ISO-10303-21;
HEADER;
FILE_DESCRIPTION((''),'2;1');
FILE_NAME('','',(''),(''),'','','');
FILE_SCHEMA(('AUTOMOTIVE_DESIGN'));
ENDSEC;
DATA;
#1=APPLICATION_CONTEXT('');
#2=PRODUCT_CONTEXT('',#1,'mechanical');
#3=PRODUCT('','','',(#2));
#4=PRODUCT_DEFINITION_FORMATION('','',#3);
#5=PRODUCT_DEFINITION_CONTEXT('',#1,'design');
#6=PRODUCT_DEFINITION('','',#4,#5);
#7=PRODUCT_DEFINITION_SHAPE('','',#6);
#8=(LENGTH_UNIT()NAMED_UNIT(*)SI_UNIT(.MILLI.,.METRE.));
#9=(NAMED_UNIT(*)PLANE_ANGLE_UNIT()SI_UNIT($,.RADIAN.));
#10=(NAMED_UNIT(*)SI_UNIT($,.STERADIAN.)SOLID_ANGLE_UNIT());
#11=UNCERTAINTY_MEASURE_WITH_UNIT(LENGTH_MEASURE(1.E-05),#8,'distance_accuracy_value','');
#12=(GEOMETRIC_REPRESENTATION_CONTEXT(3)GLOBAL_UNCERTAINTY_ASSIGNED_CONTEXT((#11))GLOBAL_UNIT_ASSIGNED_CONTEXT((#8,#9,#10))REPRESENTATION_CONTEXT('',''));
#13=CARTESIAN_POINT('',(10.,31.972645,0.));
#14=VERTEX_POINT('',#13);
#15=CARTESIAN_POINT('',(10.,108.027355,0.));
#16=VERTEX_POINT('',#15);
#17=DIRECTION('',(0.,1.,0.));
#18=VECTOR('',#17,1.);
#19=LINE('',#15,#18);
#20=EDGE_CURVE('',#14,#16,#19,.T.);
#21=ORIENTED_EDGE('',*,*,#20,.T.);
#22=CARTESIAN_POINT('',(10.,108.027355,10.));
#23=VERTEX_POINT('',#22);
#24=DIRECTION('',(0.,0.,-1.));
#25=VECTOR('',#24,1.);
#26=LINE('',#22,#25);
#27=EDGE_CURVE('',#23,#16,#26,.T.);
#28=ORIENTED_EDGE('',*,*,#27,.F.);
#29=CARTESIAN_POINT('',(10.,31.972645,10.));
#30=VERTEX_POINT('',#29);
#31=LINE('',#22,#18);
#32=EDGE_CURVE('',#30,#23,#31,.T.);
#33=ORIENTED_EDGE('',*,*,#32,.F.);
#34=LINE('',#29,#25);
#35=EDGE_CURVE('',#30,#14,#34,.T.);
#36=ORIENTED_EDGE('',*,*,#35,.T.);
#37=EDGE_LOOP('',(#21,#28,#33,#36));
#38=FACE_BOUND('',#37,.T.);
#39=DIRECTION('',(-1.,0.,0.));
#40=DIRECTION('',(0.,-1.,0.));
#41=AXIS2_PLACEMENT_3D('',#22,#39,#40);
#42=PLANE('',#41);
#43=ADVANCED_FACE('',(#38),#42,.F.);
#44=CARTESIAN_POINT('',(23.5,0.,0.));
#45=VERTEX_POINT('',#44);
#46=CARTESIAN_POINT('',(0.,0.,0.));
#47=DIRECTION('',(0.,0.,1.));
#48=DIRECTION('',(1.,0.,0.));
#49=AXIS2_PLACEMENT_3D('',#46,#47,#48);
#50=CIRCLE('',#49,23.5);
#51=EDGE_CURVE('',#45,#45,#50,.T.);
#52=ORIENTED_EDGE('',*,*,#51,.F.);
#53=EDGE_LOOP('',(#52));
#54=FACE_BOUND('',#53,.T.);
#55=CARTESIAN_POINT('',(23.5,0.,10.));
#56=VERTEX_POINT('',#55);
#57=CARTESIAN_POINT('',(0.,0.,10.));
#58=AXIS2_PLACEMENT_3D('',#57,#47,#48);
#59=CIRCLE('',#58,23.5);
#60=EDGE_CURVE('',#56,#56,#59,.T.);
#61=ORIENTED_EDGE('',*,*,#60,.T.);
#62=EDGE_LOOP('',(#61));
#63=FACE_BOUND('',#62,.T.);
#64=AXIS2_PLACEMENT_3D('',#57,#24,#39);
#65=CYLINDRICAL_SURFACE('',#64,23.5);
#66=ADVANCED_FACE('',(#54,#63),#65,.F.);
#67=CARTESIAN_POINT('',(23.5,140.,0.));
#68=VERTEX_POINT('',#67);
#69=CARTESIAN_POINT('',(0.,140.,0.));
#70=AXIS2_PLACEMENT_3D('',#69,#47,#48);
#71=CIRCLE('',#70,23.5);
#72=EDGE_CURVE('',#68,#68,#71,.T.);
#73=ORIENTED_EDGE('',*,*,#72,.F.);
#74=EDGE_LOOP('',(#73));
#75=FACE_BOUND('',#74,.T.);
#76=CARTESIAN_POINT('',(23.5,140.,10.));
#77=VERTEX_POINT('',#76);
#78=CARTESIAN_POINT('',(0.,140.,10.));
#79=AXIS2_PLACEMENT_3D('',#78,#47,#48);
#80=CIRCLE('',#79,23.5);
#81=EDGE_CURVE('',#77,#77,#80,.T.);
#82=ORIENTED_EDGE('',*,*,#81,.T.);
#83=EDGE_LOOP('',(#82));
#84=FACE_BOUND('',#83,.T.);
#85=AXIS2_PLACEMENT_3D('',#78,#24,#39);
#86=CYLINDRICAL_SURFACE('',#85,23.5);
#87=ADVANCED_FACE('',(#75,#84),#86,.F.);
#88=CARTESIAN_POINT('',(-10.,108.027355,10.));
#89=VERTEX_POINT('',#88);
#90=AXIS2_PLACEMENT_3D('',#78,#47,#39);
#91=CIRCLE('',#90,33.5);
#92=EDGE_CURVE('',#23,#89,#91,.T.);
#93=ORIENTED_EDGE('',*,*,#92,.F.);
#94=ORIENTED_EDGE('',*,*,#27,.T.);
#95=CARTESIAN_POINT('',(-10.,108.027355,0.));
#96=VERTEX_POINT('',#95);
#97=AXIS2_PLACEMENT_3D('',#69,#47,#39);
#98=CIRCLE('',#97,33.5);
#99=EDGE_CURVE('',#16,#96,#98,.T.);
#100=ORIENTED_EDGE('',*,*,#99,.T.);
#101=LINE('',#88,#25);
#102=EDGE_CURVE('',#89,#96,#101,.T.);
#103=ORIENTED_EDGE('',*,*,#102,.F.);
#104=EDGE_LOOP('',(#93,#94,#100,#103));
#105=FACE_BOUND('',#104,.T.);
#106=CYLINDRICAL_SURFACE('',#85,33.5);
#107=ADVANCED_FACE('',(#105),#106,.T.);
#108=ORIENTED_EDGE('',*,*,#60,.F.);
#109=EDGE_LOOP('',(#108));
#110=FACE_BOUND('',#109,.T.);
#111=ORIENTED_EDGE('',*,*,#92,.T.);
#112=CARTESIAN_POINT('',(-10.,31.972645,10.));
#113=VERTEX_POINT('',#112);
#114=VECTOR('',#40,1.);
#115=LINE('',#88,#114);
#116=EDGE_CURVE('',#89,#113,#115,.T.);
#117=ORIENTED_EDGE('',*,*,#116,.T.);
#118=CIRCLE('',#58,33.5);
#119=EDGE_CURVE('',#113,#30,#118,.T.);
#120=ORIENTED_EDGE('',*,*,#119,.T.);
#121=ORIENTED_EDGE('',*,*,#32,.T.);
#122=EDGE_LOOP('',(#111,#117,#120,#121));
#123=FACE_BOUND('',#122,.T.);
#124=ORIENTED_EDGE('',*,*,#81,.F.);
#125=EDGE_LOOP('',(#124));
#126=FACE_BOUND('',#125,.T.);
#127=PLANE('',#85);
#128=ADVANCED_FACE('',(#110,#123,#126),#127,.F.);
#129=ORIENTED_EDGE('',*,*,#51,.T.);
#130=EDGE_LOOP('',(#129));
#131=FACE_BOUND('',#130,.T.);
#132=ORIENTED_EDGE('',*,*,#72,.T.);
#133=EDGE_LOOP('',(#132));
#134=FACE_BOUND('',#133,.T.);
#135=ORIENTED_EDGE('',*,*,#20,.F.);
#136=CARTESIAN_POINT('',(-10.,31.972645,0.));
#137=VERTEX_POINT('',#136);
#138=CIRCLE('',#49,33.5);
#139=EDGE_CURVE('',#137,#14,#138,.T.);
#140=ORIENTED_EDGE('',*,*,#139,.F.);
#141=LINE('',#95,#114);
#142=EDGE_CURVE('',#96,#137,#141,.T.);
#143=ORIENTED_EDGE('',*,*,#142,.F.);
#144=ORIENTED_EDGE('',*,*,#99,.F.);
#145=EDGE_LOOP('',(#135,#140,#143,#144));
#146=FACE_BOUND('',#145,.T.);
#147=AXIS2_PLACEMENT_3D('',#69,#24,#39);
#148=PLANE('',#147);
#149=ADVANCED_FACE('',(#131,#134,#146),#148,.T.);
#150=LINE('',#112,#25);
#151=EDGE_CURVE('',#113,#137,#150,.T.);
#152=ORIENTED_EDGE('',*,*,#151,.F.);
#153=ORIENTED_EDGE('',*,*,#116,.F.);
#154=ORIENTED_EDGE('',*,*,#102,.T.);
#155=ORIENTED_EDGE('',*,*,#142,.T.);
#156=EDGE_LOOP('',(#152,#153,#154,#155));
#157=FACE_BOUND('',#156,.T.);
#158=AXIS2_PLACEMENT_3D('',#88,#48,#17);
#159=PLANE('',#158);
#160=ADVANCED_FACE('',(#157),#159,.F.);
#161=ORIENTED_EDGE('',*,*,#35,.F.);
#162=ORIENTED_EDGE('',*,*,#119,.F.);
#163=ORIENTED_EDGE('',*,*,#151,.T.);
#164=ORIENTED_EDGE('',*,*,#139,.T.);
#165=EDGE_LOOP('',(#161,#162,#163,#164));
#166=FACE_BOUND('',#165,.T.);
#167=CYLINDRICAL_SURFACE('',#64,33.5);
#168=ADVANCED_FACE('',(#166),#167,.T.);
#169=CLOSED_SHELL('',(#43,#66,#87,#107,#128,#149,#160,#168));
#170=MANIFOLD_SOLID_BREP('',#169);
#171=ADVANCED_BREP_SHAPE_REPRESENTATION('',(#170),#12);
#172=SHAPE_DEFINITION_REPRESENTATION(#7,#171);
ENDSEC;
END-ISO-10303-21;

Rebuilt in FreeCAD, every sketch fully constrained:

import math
import FreeCAD as App
import Part
import Sketcher
from FreeCAD import Vector
Q = App.Units.Quantity

doc = App.newDocument("Part")
body = doc.addObject("PartDesign::Body", "Body")

sketch1 = body.newObject("Sketcher::SketchObject", "Sketch")
sketch1.AttachmentSupport = (doc.getObject("XY_Plane"), [""])
sketch1.MapMode = "FlatFace"
sketch1.addGeometry([
    Part.LineSegment(Vector(-10, 108, 0), Vector(-10, 32, 0)),
    Part.ArcOfCircle(Part.Circle(Vector(0, 0, 0), Vector(0, 0, 1), 34), math.radians(107), math.radians(433)),
    Part.LineSegment(Vector(10, 32, 0), Vector(10, 108, 0)),
    Part.ArcOfCircle(Part.Circle(Vector(0, 140, 0), Vector(0, 0, 1), 34), math.radians(-73), math.radians(253)),
    Part.Circle(Vector(0, 0, 0), Vector(0, 0, 1), 24),
    Part.Circle(Vector(0, 140, 0), Vector(0, 0, 1), 24),
], False)
sketch1.addConstraint([
    Sketcher.Constraint("Coincident", 0, 2, 1, 1),
    Sketcher.Constraint("Coincident", 1, 2, 2, 1),
    Sketcher.Constraint("Coincident", 2, 2, 3, 1),
    Sketcher.Constraint("Coincident", 3, 2, 0, 1),
    Sketcher.Constraint("Vertical", 0),
    Sketcher.Constraint("Vertical", 2),
    Sketcher.Constraint("Coincident", 1, 3, -1, 1),
    Sketcher.Constraint("Coincident", 4, 3, -1, 1),
    Sketcher.Constraint("Coincident", 5, 3, 3, 3),
    Sketcher.Constraint("Equal", 1, 3),
    Sketcher.Constraint("Equal", 4, 5),
    Sketcher.Constraint("Symmetric", 2, 2, 3, 2, -2),
    Sketcher.Constraint("Diameter", 4, Q("47 mm")),
    Sketcher.Constraint("Radius", 1, Q("33.5 mm")),
    Sketcher.Constraint("DistanceY", -1, 1, 3, 3, Q("140 mm")),
    Sketcher.Constraint("DistanceX", 0, 2, -1, 1, Q("10 mm")),
])
pad1 = body.newObject("PartDesign::Pad", "Pad")
pad1.Profile = sketch1
pad1.Length = 10

doc.recompute()
